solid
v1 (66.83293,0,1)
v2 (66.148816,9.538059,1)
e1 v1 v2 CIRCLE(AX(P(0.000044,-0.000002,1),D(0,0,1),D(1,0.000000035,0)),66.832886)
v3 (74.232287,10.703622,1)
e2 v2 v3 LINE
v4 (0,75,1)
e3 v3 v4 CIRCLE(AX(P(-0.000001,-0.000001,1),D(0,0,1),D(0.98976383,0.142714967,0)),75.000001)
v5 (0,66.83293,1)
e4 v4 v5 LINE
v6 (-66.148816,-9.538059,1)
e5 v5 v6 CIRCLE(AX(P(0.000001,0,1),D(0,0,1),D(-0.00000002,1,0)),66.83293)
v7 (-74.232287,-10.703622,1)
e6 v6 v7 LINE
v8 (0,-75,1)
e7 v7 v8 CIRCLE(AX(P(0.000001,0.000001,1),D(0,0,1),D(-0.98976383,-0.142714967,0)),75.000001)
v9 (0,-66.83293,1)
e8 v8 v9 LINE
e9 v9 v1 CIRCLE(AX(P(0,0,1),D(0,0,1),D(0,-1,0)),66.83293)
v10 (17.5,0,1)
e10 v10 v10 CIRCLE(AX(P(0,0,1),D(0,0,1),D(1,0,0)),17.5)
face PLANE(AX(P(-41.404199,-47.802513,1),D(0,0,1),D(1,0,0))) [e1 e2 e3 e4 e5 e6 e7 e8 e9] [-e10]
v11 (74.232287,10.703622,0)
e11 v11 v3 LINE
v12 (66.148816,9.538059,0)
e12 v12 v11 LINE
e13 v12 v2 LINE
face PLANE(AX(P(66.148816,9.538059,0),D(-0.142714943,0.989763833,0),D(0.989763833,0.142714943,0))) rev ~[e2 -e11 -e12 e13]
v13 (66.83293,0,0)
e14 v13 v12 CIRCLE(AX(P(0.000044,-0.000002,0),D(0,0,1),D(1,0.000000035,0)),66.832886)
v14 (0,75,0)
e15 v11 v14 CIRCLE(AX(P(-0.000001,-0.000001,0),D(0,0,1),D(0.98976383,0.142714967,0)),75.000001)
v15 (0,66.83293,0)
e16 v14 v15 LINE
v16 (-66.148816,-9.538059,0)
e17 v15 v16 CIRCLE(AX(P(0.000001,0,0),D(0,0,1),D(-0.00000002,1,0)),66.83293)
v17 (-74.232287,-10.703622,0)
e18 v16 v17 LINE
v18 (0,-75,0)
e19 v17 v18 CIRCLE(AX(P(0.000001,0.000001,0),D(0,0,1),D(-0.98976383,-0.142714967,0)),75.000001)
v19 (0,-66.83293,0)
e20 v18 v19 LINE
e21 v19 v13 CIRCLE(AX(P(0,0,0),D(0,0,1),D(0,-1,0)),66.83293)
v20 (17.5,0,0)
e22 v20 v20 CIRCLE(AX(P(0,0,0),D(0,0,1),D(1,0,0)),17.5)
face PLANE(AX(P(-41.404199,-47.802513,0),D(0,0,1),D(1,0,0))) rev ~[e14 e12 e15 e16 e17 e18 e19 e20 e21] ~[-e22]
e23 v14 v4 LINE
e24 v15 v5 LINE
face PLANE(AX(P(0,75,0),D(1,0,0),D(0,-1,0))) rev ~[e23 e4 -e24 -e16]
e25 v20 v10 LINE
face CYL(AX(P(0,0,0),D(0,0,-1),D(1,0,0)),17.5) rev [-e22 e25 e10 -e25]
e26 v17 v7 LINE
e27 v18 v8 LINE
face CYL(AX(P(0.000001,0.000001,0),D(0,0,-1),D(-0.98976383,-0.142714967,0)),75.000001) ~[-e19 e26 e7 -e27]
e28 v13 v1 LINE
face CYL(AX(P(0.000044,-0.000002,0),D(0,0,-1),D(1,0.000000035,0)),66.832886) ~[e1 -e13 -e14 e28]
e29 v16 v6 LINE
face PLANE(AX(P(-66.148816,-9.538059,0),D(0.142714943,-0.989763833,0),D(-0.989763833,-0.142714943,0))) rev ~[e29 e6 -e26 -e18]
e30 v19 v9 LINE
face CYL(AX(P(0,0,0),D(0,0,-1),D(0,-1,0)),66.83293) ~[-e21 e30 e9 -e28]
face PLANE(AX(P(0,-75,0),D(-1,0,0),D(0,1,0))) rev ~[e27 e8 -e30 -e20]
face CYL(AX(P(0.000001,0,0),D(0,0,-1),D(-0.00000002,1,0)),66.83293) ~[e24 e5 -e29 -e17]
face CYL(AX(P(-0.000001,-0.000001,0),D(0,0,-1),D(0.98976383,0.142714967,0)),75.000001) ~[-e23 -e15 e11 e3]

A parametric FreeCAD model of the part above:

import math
import FreeCAD as App
import Part
import Sketcher

V = App.Vector

doc = App.newDocument("Part")
params = doc.addObject("Spreadsheet::Sheet", "Params")
for row, (alias, value) in enumerate([
    ("sketch1_diameter", "35 mm"),
    ("sketch1_radius", "75.000001 mm"),
    ("sketch1_radius2", "75.000001 mm"),
    ("pad1_length", "1 mm"),
], start=1):
    params.set(f"A{row}", alias)
    params.set(f"B{row}", "=" + value)
    params.setAlias(f"B{row}", alias)

body = doc.addObject("PartDesign::Body", "Body")

# Sketch on XY plane
sketch1 = body.newObject("Sketcher::SketchObject", "Sketch")
sketch1.AttachmentSupport = (doc.getObject("XY_Plane"), [""])
sketch1.MapMode = "FlatFace"
sketch1.addGeometry([
    Part.ArcOfCircle(Part.Circle(V(0.000001, 0.000001, 0), V(0, 0, 1), 75.000001), math.radians(-171.79502), math.radians(-90.000001)),  # 0
    Part.LineSegment(V(0, -75, 0), V(0, -66.83293, 0)),  # 1
    Part.ArcOfCircle(Part.Circle(V(0, 0, 0), V(0, 0, 1), 66.83293), math.radians(-90), math.radians(0)),  # 2
    Part.ArcOfCircle(Part.Circle(V(0.000044, -0.000002, 0), V(0, 0, 1), 66.832886), math.radians(0.000002), math.radians(8.204987)),  # 3
    Part.LineSegment(V(66.148816, 9.538059, 0), V(74.232287, 10.703622, 0)),  # 4
    Part.ArcOfCircle(Part.Circle(V(-0.000001, -0.000001, 0), V(0, 0, 1), 75.000001), math.radians(8.20498), math.radians(89.999999)),  # 5
    Part.LineSegment(V(0, 75, 0), V(0, 66.83293, 0)),  # 6
    Part.ArcOfCircle(Part.Circle(V(0.000001, 0, 0), V(0, 0, 1), 66.83293), math.radians(90.000001), math.radians(188.204979)),  # 7
    Part.LineSegment(V(-66.148816, -9.538059, 0), V(-74.232287, -10.703622, 0)),  # 8
    Part.Circle(V(0, 0, 0), V(0, 0, 1), 17.5),  # 9
], False)
sketch1.addConstraint([
    Sketcher.Constraint("Coincident", 0, 2, 1, 1),
    Sketcher.Constraint("Coincident", 1, 2, 2, 1),
    Sketcher.Constraint("Coincident", 2, 2, 3, 1),
    Sketcher.Constraint("Coincident", 3, 2, 4, 1),
    Sketcher.Constraint("Coincident", 4, 2, 5, 1),
    Sketcher.Constraint("Coincident", 5, 2, 6, 1),
    Sketcher.Constraint("Coincident", 6, 2, 7, 1),
    Sketcher.Constraint("Coincident", 7, 2, 8, 1),
    Sketcher.Constraint("Coincident", 8, 2, 0, 1),
    Sketcher.Constraint("Vertical", 1),
    Sketcher.Constraint("Vertical", 6),
    Sketcher.Constraint("Coincident", 0, 3, -1, 1),
    Sketcher.Constraint("Coincident", 2, 3, -1, 1),
    Sketcher.Constraint("Coincident", 5, 3, -1, 1),
    Sketcher.Constraint("Coincident", 7, 3, -1, 1),
    Sketcher.Constraint("Coincident", 9, 3, -1, 1),
    Sketcher.Constraint("PointOnObject", 0, 2, -2),
    Sketcher.Constraint("PointOnObject", 2, 2, -1),
    Sketcher.Constraint("PointOnObject", 5, 2, -2),
    Sketcher.Constraint("Diameter", 9, 35.0),
    Sketcher.Constraint("Radius", 0, 75.000001),
    Sketcher.Constraint("Radius", 5, 75.000001),
    Sketcher.Constraint("Radius", 2, 66.83293),
    Sketcher.Constraint("Radius", 7, 66.83293),
    Sketcher.Constraint("Radius", 3, 66.832886),
    Sketcher.Constraint("Distance", 4, 8.16707),
    Sketcher.Constraint("DistanceY", -1, 1, 3, 2, 9.538059),
    Sketcher.Constraint("DistanceY", -1, 1, 4, 2, 10.703622),
    Sketcher.Constraint("DistanceY", 7, 2, -1, 1, 9.538059),
    Sketcher.Constraint("DistanceY", 8, 2, -1, 1, 10.703622),
])
sketch1.setExpression("Constraints[19]", "Params.sketch1_diameter")
sketch1.setExpression("Constraints[20]", "Params.sketch1_radius")
sketch1.setExpression("Constraints[21]", "Params.sketch1_radius2")
pad1 = body.newObject("PartDesign::Pad", "Pad")
pad1.Profile = sketch1
pad1.setExpression("Length", "Params.pad1_length")

doc.recompute()
